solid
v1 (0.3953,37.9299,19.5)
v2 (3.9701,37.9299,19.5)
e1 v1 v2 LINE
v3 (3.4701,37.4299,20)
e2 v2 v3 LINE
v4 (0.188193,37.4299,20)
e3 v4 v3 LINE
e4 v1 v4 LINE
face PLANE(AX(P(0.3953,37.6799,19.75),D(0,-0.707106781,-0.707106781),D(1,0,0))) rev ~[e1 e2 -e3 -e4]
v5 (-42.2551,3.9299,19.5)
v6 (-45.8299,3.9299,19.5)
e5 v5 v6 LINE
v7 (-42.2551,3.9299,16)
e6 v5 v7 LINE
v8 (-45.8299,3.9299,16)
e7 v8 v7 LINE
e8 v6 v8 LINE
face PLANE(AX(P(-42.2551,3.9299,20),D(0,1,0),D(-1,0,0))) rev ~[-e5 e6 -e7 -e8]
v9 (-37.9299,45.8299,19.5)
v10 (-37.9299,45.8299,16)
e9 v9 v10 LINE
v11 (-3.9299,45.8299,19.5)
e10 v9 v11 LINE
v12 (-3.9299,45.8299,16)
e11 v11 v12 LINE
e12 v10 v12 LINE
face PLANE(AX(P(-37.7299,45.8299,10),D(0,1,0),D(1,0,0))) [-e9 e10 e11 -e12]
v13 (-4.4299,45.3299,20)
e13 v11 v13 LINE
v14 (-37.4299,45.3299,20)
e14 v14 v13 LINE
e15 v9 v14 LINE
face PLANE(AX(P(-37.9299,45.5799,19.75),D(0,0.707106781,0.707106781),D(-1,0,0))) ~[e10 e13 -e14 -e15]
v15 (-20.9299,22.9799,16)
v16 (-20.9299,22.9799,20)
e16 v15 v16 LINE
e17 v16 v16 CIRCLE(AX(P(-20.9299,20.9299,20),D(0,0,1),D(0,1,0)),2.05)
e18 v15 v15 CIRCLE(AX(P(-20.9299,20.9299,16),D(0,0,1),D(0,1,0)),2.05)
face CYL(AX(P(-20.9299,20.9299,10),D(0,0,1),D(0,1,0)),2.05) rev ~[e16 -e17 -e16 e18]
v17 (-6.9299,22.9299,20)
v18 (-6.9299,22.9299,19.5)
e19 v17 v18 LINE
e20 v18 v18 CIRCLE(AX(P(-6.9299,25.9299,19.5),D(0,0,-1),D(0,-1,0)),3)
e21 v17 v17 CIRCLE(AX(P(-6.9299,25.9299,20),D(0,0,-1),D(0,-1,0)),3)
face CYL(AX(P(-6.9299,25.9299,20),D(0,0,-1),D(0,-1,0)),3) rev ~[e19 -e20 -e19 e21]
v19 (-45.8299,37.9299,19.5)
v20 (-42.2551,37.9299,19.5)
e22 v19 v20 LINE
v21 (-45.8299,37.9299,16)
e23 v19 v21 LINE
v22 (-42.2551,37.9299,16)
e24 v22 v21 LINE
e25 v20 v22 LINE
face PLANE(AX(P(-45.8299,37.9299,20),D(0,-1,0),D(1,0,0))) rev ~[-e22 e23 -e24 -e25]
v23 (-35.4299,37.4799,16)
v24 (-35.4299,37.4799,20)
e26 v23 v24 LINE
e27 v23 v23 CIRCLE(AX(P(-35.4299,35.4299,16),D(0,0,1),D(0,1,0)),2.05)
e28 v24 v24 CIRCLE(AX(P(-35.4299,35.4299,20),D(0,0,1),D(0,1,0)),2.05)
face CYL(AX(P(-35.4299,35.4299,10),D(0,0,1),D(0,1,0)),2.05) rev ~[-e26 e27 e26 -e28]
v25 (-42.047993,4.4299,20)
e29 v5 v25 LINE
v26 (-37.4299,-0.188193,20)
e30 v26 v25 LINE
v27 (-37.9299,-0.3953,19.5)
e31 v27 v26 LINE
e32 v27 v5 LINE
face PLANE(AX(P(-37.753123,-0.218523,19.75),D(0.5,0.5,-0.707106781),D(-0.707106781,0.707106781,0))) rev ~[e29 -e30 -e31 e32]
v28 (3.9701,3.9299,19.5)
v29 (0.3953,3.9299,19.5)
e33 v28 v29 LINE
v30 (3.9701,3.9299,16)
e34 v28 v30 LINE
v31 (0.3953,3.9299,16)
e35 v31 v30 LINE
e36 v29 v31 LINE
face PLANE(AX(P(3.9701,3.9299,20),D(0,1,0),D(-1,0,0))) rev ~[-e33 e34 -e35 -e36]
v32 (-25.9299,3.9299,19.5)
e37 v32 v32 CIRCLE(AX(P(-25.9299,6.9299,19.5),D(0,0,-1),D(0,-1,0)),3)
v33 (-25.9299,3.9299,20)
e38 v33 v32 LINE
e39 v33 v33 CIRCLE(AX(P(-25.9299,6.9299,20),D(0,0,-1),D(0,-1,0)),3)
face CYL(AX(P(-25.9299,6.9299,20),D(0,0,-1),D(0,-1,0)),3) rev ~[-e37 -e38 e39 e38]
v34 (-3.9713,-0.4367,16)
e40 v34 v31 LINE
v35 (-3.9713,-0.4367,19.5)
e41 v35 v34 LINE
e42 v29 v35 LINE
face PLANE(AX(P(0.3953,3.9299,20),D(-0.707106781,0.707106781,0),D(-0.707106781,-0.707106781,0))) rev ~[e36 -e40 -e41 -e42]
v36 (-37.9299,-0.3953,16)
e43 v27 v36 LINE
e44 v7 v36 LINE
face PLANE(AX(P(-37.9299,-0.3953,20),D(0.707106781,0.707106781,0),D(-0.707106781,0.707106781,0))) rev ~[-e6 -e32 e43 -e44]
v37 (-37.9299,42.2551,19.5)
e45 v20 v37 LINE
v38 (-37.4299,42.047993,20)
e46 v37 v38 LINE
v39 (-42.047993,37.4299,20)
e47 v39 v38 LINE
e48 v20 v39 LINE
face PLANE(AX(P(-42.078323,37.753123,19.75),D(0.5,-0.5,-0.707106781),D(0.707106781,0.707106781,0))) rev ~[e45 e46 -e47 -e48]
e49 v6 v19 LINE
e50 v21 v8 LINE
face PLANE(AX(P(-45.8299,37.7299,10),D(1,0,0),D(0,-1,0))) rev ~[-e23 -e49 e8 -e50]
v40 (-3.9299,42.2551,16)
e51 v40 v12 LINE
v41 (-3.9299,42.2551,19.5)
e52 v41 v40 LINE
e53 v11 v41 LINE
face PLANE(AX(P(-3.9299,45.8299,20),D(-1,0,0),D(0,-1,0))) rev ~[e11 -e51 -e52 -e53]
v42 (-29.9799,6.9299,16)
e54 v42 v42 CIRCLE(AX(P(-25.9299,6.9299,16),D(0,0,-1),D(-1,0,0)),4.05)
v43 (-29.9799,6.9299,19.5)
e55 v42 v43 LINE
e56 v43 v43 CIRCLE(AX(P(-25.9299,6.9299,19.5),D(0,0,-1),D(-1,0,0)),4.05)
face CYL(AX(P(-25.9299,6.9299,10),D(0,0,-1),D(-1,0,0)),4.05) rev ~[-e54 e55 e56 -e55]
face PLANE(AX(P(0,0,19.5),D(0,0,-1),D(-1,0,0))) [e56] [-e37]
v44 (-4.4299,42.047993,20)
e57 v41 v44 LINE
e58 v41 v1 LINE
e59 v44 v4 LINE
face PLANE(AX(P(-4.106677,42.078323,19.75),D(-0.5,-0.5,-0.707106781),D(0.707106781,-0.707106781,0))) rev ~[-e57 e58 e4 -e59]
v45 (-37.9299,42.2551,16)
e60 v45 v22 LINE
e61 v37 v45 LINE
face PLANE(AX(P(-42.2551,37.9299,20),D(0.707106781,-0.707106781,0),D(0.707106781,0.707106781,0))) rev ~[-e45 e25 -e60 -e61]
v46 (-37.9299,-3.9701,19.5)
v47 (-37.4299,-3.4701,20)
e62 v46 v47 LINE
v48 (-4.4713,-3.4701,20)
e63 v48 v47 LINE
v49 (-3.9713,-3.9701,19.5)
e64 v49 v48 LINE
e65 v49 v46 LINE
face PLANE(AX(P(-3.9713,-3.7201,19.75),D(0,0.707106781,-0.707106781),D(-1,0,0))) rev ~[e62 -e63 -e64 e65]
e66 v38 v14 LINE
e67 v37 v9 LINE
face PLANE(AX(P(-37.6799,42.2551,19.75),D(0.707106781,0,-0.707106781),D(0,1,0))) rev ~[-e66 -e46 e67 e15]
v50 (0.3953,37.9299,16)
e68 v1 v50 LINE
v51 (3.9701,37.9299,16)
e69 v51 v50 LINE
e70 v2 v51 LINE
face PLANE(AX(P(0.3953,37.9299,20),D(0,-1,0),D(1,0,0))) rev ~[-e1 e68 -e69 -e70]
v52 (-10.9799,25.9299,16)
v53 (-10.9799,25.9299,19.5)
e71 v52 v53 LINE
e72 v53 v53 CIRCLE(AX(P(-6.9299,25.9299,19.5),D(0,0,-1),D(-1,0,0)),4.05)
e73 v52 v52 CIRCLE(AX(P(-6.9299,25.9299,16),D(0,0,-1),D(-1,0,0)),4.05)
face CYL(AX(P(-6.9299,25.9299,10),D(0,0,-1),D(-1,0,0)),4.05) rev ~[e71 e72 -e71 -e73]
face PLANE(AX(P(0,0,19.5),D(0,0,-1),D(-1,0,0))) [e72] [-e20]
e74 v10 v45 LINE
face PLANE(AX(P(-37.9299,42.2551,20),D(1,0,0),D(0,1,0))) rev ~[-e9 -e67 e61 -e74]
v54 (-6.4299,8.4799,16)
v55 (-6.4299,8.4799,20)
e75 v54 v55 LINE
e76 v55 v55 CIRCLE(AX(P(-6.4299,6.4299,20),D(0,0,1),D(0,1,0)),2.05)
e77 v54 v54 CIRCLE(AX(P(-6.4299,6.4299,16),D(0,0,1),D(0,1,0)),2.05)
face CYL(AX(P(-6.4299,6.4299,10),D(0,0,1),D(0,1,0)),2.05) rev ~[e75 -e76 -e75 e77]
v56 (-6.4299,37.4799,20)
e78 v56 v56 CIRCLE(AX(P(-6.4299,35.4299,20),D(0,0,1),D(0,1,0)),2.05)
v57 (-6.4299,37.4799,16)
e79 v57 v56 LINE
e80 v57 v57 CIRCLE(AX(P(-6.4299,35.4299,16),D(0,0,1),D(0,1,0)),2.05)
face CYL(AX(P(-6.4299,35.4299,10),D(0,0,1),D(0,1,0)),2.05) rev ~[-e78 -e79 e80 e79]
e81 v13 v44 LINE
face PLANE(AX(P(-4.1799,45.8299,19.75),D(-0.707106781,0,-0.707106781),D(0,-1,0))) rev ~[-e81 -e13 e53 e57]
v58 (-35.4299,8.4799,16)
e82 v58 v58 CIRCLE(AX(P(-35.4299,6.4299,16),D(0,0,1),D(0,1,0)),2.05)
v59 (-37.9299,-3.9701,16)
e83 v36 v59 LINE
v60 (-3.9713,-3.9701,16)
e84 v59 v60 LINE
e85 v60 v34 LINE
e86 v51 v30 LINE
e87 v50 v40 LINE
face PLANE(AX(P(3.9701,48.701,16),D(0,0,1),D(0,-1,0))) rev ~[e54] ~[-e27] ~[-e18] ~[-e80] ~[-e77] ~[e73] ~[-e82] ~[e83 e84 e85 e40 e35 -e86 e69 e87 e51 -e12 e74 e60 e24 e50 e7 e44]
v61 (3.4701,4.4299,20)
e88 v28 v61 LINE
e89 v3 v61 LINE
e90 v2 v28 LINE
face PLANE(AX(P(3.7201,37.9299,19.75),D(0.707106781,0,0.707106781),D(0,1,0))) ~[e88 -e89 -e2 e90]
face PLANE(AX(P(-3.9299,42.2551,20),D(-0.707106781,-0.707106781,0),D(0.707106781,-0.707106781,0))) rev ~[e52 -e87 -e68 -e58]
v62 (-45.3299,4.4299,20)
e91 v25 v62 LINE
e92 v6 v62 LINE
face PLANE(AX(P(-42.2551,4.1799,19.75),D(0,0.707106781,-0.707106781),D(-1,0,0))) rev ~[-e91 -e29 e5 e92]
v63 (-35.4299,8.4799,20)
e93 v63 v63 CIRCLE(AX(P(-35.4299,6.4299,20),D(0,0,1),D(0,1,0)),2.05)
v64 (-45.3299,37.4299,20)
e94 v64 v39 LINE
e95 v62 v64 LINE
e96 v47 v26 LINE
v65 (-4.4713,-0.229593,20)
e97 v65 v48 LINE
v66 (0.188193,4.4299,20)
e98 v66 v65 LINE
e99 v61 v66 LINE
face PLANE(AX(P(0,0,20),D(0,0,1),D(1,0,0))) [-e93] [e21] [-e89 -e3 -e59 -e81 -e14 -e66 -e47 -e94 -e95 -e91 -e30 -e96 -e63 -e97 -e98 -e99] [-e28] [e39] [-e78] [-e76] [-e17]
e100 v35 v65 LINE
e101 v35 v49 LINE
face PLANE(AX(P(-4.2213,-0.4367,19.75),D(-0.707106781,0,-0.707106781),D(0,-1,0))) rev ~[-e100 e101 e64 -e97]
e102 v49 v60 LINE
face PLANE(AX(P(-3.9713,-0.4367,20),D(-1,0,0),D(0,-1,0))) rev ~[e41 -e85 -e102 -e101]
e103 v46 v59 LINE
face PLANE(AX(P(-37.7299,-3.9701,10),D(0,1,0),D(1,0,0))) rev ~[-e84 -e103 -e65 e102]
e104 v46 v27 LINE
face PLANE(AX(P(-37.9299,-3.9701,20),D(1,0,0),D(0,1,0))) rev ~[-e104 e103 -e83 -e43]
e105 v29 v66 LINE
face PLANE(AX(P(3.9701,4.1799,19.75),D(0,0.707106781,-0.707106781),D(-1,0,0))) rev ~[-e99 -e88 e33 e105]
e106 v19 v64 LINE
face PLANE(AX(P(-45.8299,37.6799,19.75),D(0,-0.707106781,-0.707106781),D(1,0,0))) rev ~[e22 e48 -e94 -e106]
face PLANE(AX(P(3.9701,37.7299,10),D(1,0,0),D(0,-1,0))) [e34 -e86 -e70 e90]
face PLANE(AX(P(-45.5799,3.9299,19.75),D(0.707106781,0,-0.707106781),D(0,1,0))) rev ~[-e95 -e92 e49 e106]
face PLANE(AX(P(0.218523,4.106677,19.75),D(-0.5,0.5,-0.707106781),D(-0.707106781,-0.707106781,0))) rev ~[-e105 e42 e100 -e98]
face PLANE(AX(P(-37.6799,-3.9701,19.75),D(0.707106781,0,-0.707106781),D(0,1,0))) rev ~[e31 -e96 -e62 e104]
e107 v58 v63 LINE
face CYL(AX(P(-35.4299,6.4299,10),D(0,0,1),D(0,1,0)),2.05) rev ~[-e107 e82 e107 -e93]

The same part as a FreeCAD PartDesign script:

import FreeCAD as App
import Part
import Sketcher

V = App.Vector
Q = App.Units.Quantity


def edges_at(feature, points):
    """Names of the edges that pass closest to the given points."""
    edges = feature.Shape.Edges
    near = lambda p: min(range(len(edges)), key=lambda i: edges[i].distToShape(Part.Vertex(*p))[0])
    return sorted({f"Edge{near(p) + 1}" for p in points})

doc = App.newDocument("Part")
body = doc.addObject("PartDesign::Body", "Body")

# Sketch on XY plane
sketch1 = doc.addObject("Sketcher::SketchObject", "Sketch")
body.addObject(sketch1)
sketch1.AttachmentSupport = (doc.XY_Plane, [""])
sketch1.MapMode = "FlatFace"
sketch1.AttachmentOffset = App.Placement(V(0, 0, 10), App.Rotation())
sketch1.addGeometry(Part.LineSegment(V(-4.171, -0.354, 0), V(0.312, 4.13, 0)), False)
sketch1.addGeometry(Part.LineSegment(V(0.312, 4.13, 0), V(3.97, 4.13, 0)), False)
sketch1.addGeometry(Part.LineSegment(V(3.97, 4.13, 0), V(3.97, 37.73, 0)), False)
sketch1.addGeometry(Part.LineSegment(V(3.97, 37.73, 0), V(0.312, 37.73, 0)), False)
sketch1.addGeometry(Part.LineSegment(V(0.312, 37.73, 0), V(-4.13, 42.172, 0)), False)
sketch1.addGeometry(Part.LineSegment(V(-4.13, 42.172, 0), V(-4.13, 45.83, 0)), False)
sketch1.addGeometry(Part.LineSegment(V(-4.13, 45.83, 0), V(-37.73, 45.83, 0)), False)
sketch1.addGeometry(Part.LineSegment(V(-37.73, 45.83, 0), V(-37.73, 42.172, 0)), False)
sketch1.addGeometry(Part.LineSegment(V(-37.73, 42.172, 0), V(-42.172, 37.73, 0)), False)
sketch1.addGeometry(Part.LineSegment(V(-42.172, 37.73, 0), V(-45.83, 37.73, 0)), False)
sketch1.addGeometry(Part.LineSegment(V(-45.83, 37.73, 0), V(-45.83, 4.13, 0)), False)
sketch1.addGeometry(Part.LineSegment(V(-45.83, 4.13, 0), V(-42.172, 4.13, 0)), False)
sketch1.addGeometry(Part.LineSegment(V(-42.172, 4.13, 0), V(-37.689, -0.354, 0)), False)
sketch1.addGeometry(Part.LineSegment(V(-37.689, -0.354, 0), V(-37.73, -0.354, 0)), False)
sketch1.addGeometry(Part.LineSegment(V(-37.73, -0.354, 0), V(-37.73, -3.97, 0)), False)
sketch1.addGeometry(Part.LineSegment(V(-37.73, -3.97, 0), V(-4.171, -3.97, 0)), False)
sketch1.addGeometry(Part.LineSegment(V(-4.171, -3.97, 0), V(-4.171, -0.354, 0)), False)
sketch1.addConstraint(Sketcher.Constraint("Coincident", 0, 2, 1, 1))
sketch1.addConstraint(Sketcher.Constraint("Coincident", 1, 2, 2, 1))
sketch1.addConstraint(Sketcher.Constraint("Coincident", 2, 2, 3, 1))
sketch1.addConstraint(Sketcher.Constraint("Coincident", 3, 2, 4, 1))
sketch1.addConstraint(Sketcher.Constraint("Coincident", 4, 2, 5, 1))
sketch1.addConstraint(Sketcher.Constraint("Coincident", 5, 2, 6, 1))
sketch1.addConstraint(Sketcher.Constraint("Coincident", 6, 2, 7, 1))
sketch1.addConstraint(Sketcher.Constraint("Coincident", 7, 2, 8, 1))
sketch1.addConstraint(Sketcher.Constraint("Coincident", 8, 2, 9, 1))
sketch1.addConstraint(Sketcher.Constraint("Coincident", 9, 2, 10, 1))
sketch1.addConstraint(Sketcher.Constraint("Coincident", 10, 2, 11, 1))
sketch1.addConstraint(Sketcher.Constraint("Coincident", 11, 2, 12, 1))
sketch1.addConstraint(Sketcher.Constraint("Coincident", 12, 2, 13, 1))
sketch1.addConstraint(Sketcher.Constraint("Coincident", 13, 2, 14, 1))
sketch1.addConstraint(Sketcher.Constraint("Coincident", 14, 2, 15, 1))
sketch1.addConstraint(Sketcher.Constraint("Coincident", 15, 2, 16, 1))
sketch1.addConstraint(Sketcher.Constraint("Coincident", 16, 2, 0, 1))
sketch1.addConstraint(Sketcher.Constraint("Horizontal", 1))
sketch1.addConstraint(Sketcher.Constraint("Vertical", 2))
sketch1.addConstraint(Sketcher.Constraint("Horizontal", 3))
sketch1.addConstraint(Sketcher.Constraint("Vertical", 5))
sketch1.addConstraint(Sketcher.Constraint("Horizontal", 6))
sketch1.addConstraint(Sketcher.Constraint("Vertical", 7))
sketch1.addConstraint(Sketcher.Constraint("Horizontal", 9))
sketch1.addConstraint(Sketcher.Constraint("Vertical", 10))
sketch1.addConstraint(Sketcher.Constraint("Horizontal", 11))
sketch1.addConstraint(Sketcher.Constraint("Horizontal", 13))
sketch1.addConstraint(Sketcher.Constraint("Vertical", 14))
sketch1.addConstraint(Sketcher.Constraint("Horizontal", 15))
sketch1.addConstraint(Sketcher.Constraint("Vertical", 16))
sketch1.addConstraint(Sketcher.Constraint("Perpendicular", 0, 4))
sketch1.addConstraint(Sketcher.Constraint("Perpendicular", 4, 8))
sketch1.addConstraint(Sketcher.Constraint("Perpendicular", 8, 12))
sketch1.addConstraint(Sketcher.Constraint("Horizontal", 4, 2, 7, 2))
sketch1.addConstraint(Sketcher.Constraint("Horizontal", 3, 2, 8, 2))
sketch1.addConstraint(Sketcher.Constraint("Horizontal", 1, 2, 10, 2))
sketch1.addConstraint(Sketcher.Constraint("Horizontal", 13, 2, 16, 2))
sketch1.addConstraint(Sketcher.Constraint("Vertical", 0, 2, 3, 2))
sketch1.addConstraint(Sketcher.Constraint("Vertical", 8, 2, 11, 2))
sketch1.addConstraint(Sketcher.Constraint("Vertical", 7, 2, 13, 2))
sketch1.addConstraint(Sketcher.Constraint("Equal", 3, 9))
sketch1.addConstraint(Sketcher.Constraint("Equal", 6, 2))
sketch1.addConstraint(Sketcher.Constraint("Equal", 11, 5))
sketch1.addConstraint(Sketcher.Constraint("Equal", 4, 8))
sketch1.addConstraint(Sketcher.Constraint("DistanceX", 6, 2, 6, 1, Q("33.6 mm")))
sketch1.addConstraint(Sketcher.Constraint("DistanceX", 4, 2, 2, 2, Q("8.1 mm")))
sketch1.addConstraint(Sketcher.Constraint("DistanceY", 14, 2, 11, 2, Q("8.1 mm")))
sketch1.addConstraint(Sketcher.Constraint("DistanceY", -1, 1, 0, 2, Q("4.13 mm")))
sketch1.addConstraint(Sketcher.Constraint("DistanceX", -1, 1, 1, 2, Q("3.97 mm")))
sketch1.addConstraint(Sketcher.Constraint("Distance", 0, Q("6.341 mm")))
sketch1.addConstraint(Sketcher.Constraint("DistanceX", 1, 1, 1, 2, Q("3.6577 mm")))
pad1 = doc.addObject("PartDesign::Pad", "Pad")
body.addObject(pad1)
pad1.Profile = sketch1
pad1.Length = 10

# Sketch on XY plane
sketch2 = doc.addObject("Sketcher::SketchObject", "Sketch001")
body.addObject(sketch2)
sketch2.AttachmentSupport = (doc.XY_Plane, [""])
sketch2.MapMode = "FlatFace"
sketch2.AttachmentOffset = App.Placement(V(0, 0, 20), App.Rotation())
sketch2.addGeometry(Part.LineSegment(V(3.97, 3.93, 0), V(3.97, 4.13, 0)), False)
sketch2.addGeometry(Part.LineSegment(V(3.97, 4.13, 0), V(0.312, 4.13, 0)), False)
sketch2.addGeometry(Part.LineSegment(V(0.312, 4.13, 0), V(-4.171, -0.354, 0)), False)
sketch2.addGeometry(Part.LineSegment(V(-4.171, -0.354, 0), V(-4.171, -3.97, 0)), False)
sketch2.addGeometry(Part.LineSegment(V(-4.171, -3.97, 0), V(-3.971, -3.97, 0)), False)
sketch2.addGeometry(Part.LineSegment(V(-3.971, -3.97, 0), V(-3.971, -0.437, 0)), False)
sketch2.addGeometry(Part.LineSegment(V(-3.971, -0.437, 0), V(0.395, 3.93, 0)), False)
sketch2.addGeometry(Part.LineSegment(V(0.395, 3.93, 0), V(3.97, 3.93, 0)), False)
sketch2.addGeometry(Part.LineSegment(V(-3.93, 45.83, 0), V(-4.13, 45.83, 0)), False)
sketch2.addGeometry(Part.LineSegment(V(-4.13, 45.83, 0), V(-4.13, 42.172, 0)), False)
sketch2.addGeometry(Part.LineSegment(V(-4.13, 42.172, 0), V(0.312, 37.73, 0)), False)
sketch2.addGeometry(Part.LineSegment(V(0.312, 37.73, 0), V(3.97, 37.73, 0)), False)
sketch2.addGeometry(Part.LineSegment(V(3.97, 37.73, 0), V(3.97, 37.93, 0)), False)
sketch2.addGeometry(Part.LineSegment(V(3.97, 37.93, 0), V(0.395, 37.93, 0)), False)
sketch2.addGeometry(Part.LineSegment(V(0.395, 37.93, 0), V(-3.93, 42.255, 0)), False)
sketch2.addGeometry(Part.LineSegment(V(-3.93, 42.255, 0), V(-3.93, 45.83, 0)), False)
sketch2.addGeometry(Part.LineSegment(V(-42.172, 37.73, 0), V(-37.73, 42.172, 0)), False)
sketch2.addGeometry(Part.LineSegment(V(-37.73, 42.172, 0), V(-37.73, 45.83, 0)), False)
sketch2.addGeometry(Part.LineSegment(V(-37.73, 45.83, 0), V(-37.93, 45.83, 0)), False)
sketch2.addGeometry(Part.LineSegment(V(-37.93, 45.83, 0), V(-37.93, 42.255, 0)), False)
sketch2.addGeometry(Part.LineSegment(V(-37.93, 42.255, 0), V(-42.255, 37.93, 0)), False)
sketch2.addGeometry(Part.LineSegment(V(-42.255, 37.93, 0), V(-45.83, 37.93, 0)), False)
sketch2.addGeometry(Part.LineSegment(V(-45.83, 37.93, 0), V(-45.83, 37.73, 0)), False)
sketch2.addGeometry(Part.LineSegment(V(-45.83, 37.73, 0), V(-42.172, 37.73, 0)), False)
sketch2.addGeometry(Part.LineSegment(V(-42.172, 4.13, 0), V(-45.83, 4.13, 0)), False)
sketch2.addGeometry(Part.LineSegment(V(-45.83, 4.13, 0), V(-45.83, 3.93, 0)), False)
sketch2.addGeometry(Part.LineSegment(V(-45.83, 3.93, 0), V(-42.255, 3.93, 0)), False)
sketch2.addGeometry(Part.LineSegment(V(-42.255, 3.93, 0), V(-37.93, -0.395, 0)), False)
sketch2.addGeometry(Part.LineSegment(V(-37.93, -0.395, 0), V(-37.93, -3.97, 0)), False)
sketch2.addGeometry(Part.LineSegment(V(-37.93, -3.97, 0), V(-37.73, -3.97, 0)), False)
sketch2.addGeometry(Part.LineSegment(V(-37.73, -3.97, 0), V(-37.73, -0.354, 0)), False)
sketch2.addGeometry(Part.LineSegment(V(-37.73, -0.354, 0), V(-37.688, -0.354, 0)), False)
sketch2.addGeometry(Part.LineSegment(V(-37.688, -0.354, 0), V(-42.172, 4.13, 0)), False)
sketch2.addConstraint(Sketcher.Constraint("Coincident", 0, 2, 1, 1))
sketch2.addConstraint(Sketcher.Constraint("Coincident", 1, 2, 2, 1))
sketch2.addConstraint(Sketcher.Constraint("Coincident", 2, 2, 3, 1))
sketch2.addConstraint(Sketcher.Constraint("Coincident", 3, 2, 4, 1))
sketch2.addConstraint(Sketcher.Constraint("Coincident", 4, 2, 5, 1))
sketch2.addConstraint(Sketcher.Constraint("Coincident", 5, 2, 6, 1))
sketch2.addConstraint(Sketcher.Constraint("Coincident", 6, 2, 7, 1))
sketch2.addConstraint(Sketcher.Constraint("Coincident", 7, 2, 0, 1))
sketch2.addConstraint(Sketcher.Constraint("Coincident", 8, 2, 9, 1))
sketch2.addConstraint(Sketcher.Constraint("Coincident", 9, 2, 10, 1))
sketch2.addConstraint(Sketcher.Constraint("Coincident", 10, 2, 11, 1))
sketch2.addConstraint(Sketcher.Constraint("Coincident", 11, 2, 12, 1))
sketch2.addConstraint(Sketcher.Constraint("Coincident", 12, 2, 13, 1))
sketch2.addConstraint(Sketcher.Constraint("Coincident", 13, 2, 14, 1))
sketch2.addConstraint(Sketcher.Constraint("Coincident", 14, 2, 15, 1))
sketch2.addConstraint(Sketcher.Constraint("Coincident", 15, 2, 8, 1))
sketch2.addConstraint(Sketcher.Constraint("Coincident", 16, 2, 17, 1))
sketch2.addConstraint(Sketcher.Constraint("Coincident", 17, 2, 18, 1))
sketch2.addConstraint(Sketcher.Constraint("Coincident", 18, 2, 19, 1))
sketch2.addConstraint(Sketcher.Constraint("Coincident", 19, 2, 20, 1))
sketch2.addConstraint(Sketcher.Constraint("Coincident", 20, 2, 21, 1))
sketch2.addConstraint(Sketcher.Constraint("Coincident", 21, 2, 22, 1))
sketch2.addConstraint(Sketcher.Constraint("Coincident", 22, 2, 23, 1))
sketch2.addConstraint(Sketcher.Constraint("Coincident", 23, 2, 16, 1))
sketch2.addConstraint(Sketcher.Constraint("Coincident", 24, 2, 25, 1))
sketch2.addConstraint(Sketcher.Constraint("Coincident", 25, 2, 26, 1))
sketch2.addConstraint(Sketcher.Constraint("Coincident", 26, 2, 27, 1))
sketch2.addConstraint(Sketcher.Constraint("Coincident", 27, 2, 28, 1))
sketch2.addConstraint(Sketcher.Constraint("Coincident", 28, 2, 29, 1))
sketch2.addConstraint(Sketcher.Constraint("Coincident", 29, 2, 30, 1))
sketch2.addConstraint(Sketcher.Constraint("Coincident", 30, 2, 31, 1))
sketch2.addConstraint(Sketcher.Constraint("Coincident", 31, 2, 32, 1))
sketch2.addConstraint(Sketcher.Constraint("Coincident", 32, 2, 24, 1))
sketch2.addConstraint(Sketcher.Constraint("Vertical", 0))
sketch2.addConstraint(Sketcher.Constraint("Horizontal", 1))
sketch2.addConstraint(Sketcher.Constraint("Vertical", 3))
sketch2.addConstraint(Sketcher.Constraint("Horizontal", 4))
sketch2.addConstraint(Sketcher.Constraint("Vertical", 5))
sketch2.addConstraint(Sketcher.Constraint("Horizontal", 7))
sketch2.addConstraint(Sketcher.Constraint("Horizontal", 8))
sketch2.addConstraint(Sketcher.Constraint("Vertical", 9))
sketch2.addConstraint(Sketcher.Constraint("Horizontal", 11))
sketch2.addConstraint(Sketcher.Constraint("Vertical", 12))
sketch2.addConstraint(Sketcher.Constraint("Horizontal", 13))
sketch2.addConstraint(Sketcher.Constraint("Vertical", 15))
sketch2.addConstraint(Sketcher.Constraint("Vertical", 17))
sketch2.addConstraint(Sketcher.Constraint("Horizontal", 18))
sketch2.addConstraint(Sketcher.Constraint("Vertical", 19))
sketch2.addConstraint(Sketcher.Constraint("Horizontal", 21))
sketch2.addConstraint(Sketcher.Constraint("Vertical", 22))
sketch2.addConstraint(Sketcher.Constraint("Horizontal", 23))
sketch2.addConstraint(Sketcher.Constraint("Horizontal", 24))
sketch2.addConstraint(Sketcher.Constraint("Vertical", 25))
sketch2.addConstraint(Sketcher.Constraint("Horizontal", 26))
sketch2.addConstraint(Sketcher.Constraint("Vertical", 28))
sketch2.addConstraint(Sketcher.Constraint("Horizontal", 29))
sketch2.addConstraint(Sketcher.Constraint("Vertical", 30))
sketch2.addConstraint(Sketcher.Constraint("Horizontal", 31))
sketch2.addConstraint(Sketcher.Constraint("Parallel", 2, 6))
sketch2.addConstraint(Sketcher.Constraint("Perpendicular", 6, 10))
sketch2.addConstraint(Sketcher.Constraint("Parallel", 10, 14))
sketch2.addConstraint(Sketcher.Constraint("Perpendicular", 14, 16))
sketch2.addConstraint(Sketcher.Constraint("Parallel", 16, 20))
sketch2.addConstraint(Sketcher.Constraint("Perpendicular", 20, 27))
sketch2.addConstraint(Sketcher.Constraint("Parallel", 27, 32))
sketch2.addConstraint(Sketcher.Constraint("Horizontal", 9, 2, 16, 2))
sketch2.addConstraint(Sketcher.Constraint("Horizontal", 15, 2, 17, 2))
sketch2.addConstraint(Sketcher.Constraint("Horizontal", 14, 2, 19, 2))
sketch2.addConstraint(Sketcher.Constraint("Horizontal", 13, 2, 20, 2))
sketch2.addConstraint(Sketcher.Constraint("Horizontal", 11, 2, 22, 2))
sketch2.addConstraint(Sketcher.Constraint("Horizontal", 1, 2, 24, 2))
sketch2.addConstraint(Sketcher.Constraint("Horizontal", 7, 2, 25, 2))
sketch2.addConstraint(Sketcher.Constraint("Horizontal", 4, 2, 28, 2))
sketch2.addConstraint(Sketcher.Constraint("Horizontal", 2, 2, 30, 2))
sketch2.addConstraint(Sketcher.Constraint("Vertical", 1, 2, 10, 2))
sketch2.addConstraint(Sketcher.Constraint("Vertical", 7, 2, 11, 2))
sketch2.addConstraint(Sketcher.Constraint("Vertical", 6, 2, 13, 2))
sketch2.addConstraint(Sketcher.Constraint("Vertical", 22, 2, 24, 2))
sketch2.addConstraint(Sketcher.Constraint("Vertical", 20, 2, 26, 2))
sketch2.addConstraint(Sketcher.Constraint("Vertical", 19, 2, 27, 2))
sketch2.addConstraint(Sketcher.Constraint("Vertical", 17, 2, 29, 2))
sketch2.addConstraint(Sketcher.Constraint("Vertical", 23, 2, 32, 2))
sketch2.addConstraint(Sketcher.Constraint("Equal", 4, 8))
sketch2.addConstraint(Sketcher.Constraint("Equal", 8, 18))
sketch2.addConstraint(Sketcher.Constraint("Equal", 13, 21))
sketch2.addConstraint(Sketcher.Constraint("Equal", 11, 23))
sketch2.addConstraint(Sketcher.Constraint("Equal", 29, 0))
sketch2.addConstraint(Sketcher.Constraint("Equal", 24, 9))
sketch2.addConstraint(Sketcher.Constraint("Equal", 0, 12))
sketch2.addConstraint(Sketcher.Constraint("Equal", 19, 28))
sketch2.addConstraint(Sketcher.Constraint("DistanceX", 4, 1, 4, 2, Q("0.2 mm")))
sketch2.addConstraint(Sketcher.Constraint("DistanceX", 18, 2, 15, 2, Q("34 mm")))
sketch2.addConstraint(Sketcher.Constraint("DistanceY", 25, 2, 21, 2, Q("34 mm")))
sketch2.addConstraint(Sketcher.Constraint("DistanceY", 3, 2, 1, 2, Q("8.1 mm")))
sketch2.addConstraint(Sketcher.Constraint("DistanceX", -1, 1, 0, 2, Q("3.97 mm")))
sketch2.addConstraint(Sketcher.Constraint("DistanceY", -1, 1, 0, 2, Q("4.13 mm")))
sketch2.addConstraint(Sketcher.Constraint("Distance", 2, Q("6.341 mm")))
sketch2.addConstraint(Sketcher.Constraint("DistanceX", 1, 2, 1, 1, Q("3.6577 mm")))
sketch2.addConstraint(Sketcher.Constraint("DistanceX", 7, 1, 7, 2, Q("3.5748 mm")))
pad2 = doc.addObject("PartDesign::Pad", "Pad001")
body.addObject(pad2)
pad2.Profile = sketch2
pad2.Length = 10
pad2.Reversed = True

# Sketch on XY plane
sketch3 = doc.addObject("Sketcher::SketchObject", "Sketch002")
body.addObject(sketch3)
sketch3.AttachmentSupport = (doc.XY_Plane, [""])
sketch3.MapMode = "FlatFace"
sketch3.AttachmentOffset = App.Placement(V(0, 0, 10), App.Rotation())
sketch3.addGeometry(Part.Circle(V(-20.9, 20.9, 0), V(0, 0, 1), 2), False)
sketch3.addGeometry(Part.Circle(V(-6.4, 6.4, 0), V(0, 0, 1), 2), False)
sketch3.addGeometry(Part.Circle(V(-35.4, 6.4, 0), V(0, 0, 1), 2), False)
sketch3.addGeometry(Part.Circle(V(-35.4, 35.4, 0), V(0, 0, 1), 2), False)
sketch3.addGeometry(Part.Circle(V(-6.4, 35.4, 0), V(0, 0, 1), 2), False)
sketch3.addConstraint(Sketcher.Constraint("Equal", 0, 1))
sketch3.addConstraint(Sketcher.Constraint("Equal", 1, 2))
sketch3.addConstraint(Sketcher.Constraint("Equal", 2, 3))
sketch3.addConstraint(Sketcher.Constraint("Equal", 3, 4))
sketch3.addConstraint(Sketcher.Constraint("Horizontal", 1, 3, 2, 3))
sketch3.addConstraint(Sketcher.Constraint("Horizontal", 3, 3, 4, 3))
sketch3.addConstraint(Sketcher.Constraint("Vertical", 2, 3, 3, 3))
sketch3.addConstraint(Sketcher.Constraint("Vertical", 1, 3, 4, 3))
sketch3.addConstraint(Sketcher.Constraint("Diameter", 0, Q("4.1 mm")))
sketch3.addConstraint(Sketcher.Constraint("DistanceX", 2, 3, 1, 3, Q("29 mm")))
sketch3.addConstraint(Sketcher.Constraint("DistanceY", 2, 3, 3, 3, Q("29 mm")))
sketch3.addConstraint(Sketcher.Constraint("DistanceX", 0, 3, 1, 3, Q("14.5 mm")))
sketch3.addConstraint(Sketcher.Constraint("DistanceY", 1, 3, 0, 3, Q("14.5 mm")))
sketch3.addConstraint(Sketcher.Constraint("DistanceX", 0, 3, -1, 1, Q("20.93 mm")))
sketch3.addConstraint(Sketcher.Constraint("DistanceY", -1, 1, 0, 3, Q("20.93 mm")))
doc.recompute()
hole = doc.addObject("PartDesign::Hole", "Hole")
body.addObject(hole)
hole.Profile = sketch3
hole.ThreadType = "None"
hole.Diameter = 4.1
hole.DepthType = "ThroughAll"
hole.Reversed = True

# Sketch on XY plane
sketch4 = doc.addObject("Sketcher::SketchObject", "Sketch003")
body.addObject(sketch4)
sketch4.AttachmentSupport = (doc.XY_Plane, [""])
sketch4.MapMode = "FlatFace"
sketch4.AttachmentOffset = App.Placement(V(0, 0, 10), App.Rotation())
sketch4.addGeometry(Part.Circle(V(-25.9, 6.9, 0), V(0, 0, 1), 4), False)
sketch4.addGeometry(Part.Circle(V(-6.9, 25.9, 0), V(0, 0, 1), 4), False)
sketch4.addConstraint(Sketcher.Constraint("Equal", 0, 1))
sketch4.addConstraint(Sketcher.Constraint("Diameter", 0, Q("8.1 mm")))
sketch4.addConstraint(Sketcher.Constraint("DistanceX", 0, 3, 1, 3, Q("19 mm")))
sketch4.addConstraint(Sketcher.Constraint("DistanceY", 0, 3, 1, 3, Q("19 mm")))
sketch4.addConstraint(Sketcher.Constraint("DistanceX", 0, 3, -1, 1, Q("25.93 mm")))
sketch4.addConstraint(Sketcher.Constraint("DistanceY", -1, 1, 0, 3, Q("6.93 mm")))
pocket1 = doc.addObject("PartDesign::Pocket", "Pocket")
body.addObject(pocket1)
pocket1.Profile = sketch4
pocket1.Length = 9.5
pocket1.Reversed = True
doc.recompute()

chamfer = doc.addObject("PartDesign::Chamfer", "Chamfer")
body.addObject(chamfer)
chamfer.Base = (pocket1, edges_at(pocket1, [
    (-2.88, 25.93, 10),
    (-35.43, 4.38, 10),
    (-6.43, 4.38, 10),
    (-20.93, 18.88, 10),
    (-35.43, 33.38, 10),
    (-6.43, 33.38, 10),
    (-21.88, 6.93, 10),
    (-45.83, 20.93, 10),
    (-20.951, -3.97, 10),
    (3.97, 20.93, 20),
    (3.97, 20.93, 10),
    (-20.93, 45.83, 10),
    (-44.042, 37.93, 20),
    (-40.093, 40.093, 20),
    (-37.93, 44.042, 20),
    (-20.93, 45.83, 20),
    (-45.83, 20.93, 20),
    (-44.042, 3.93, 20),
    (-20.951, -3.97, 20),
    (-37.93, -2.183, 20),
    (-40.093, 1.767, 20),
    (-3.971, -2.203, 20),
    (-1.788, 1.747, 20),
    (2.183, 3.93, 20),
    (2.183, 37.93, 20),
    (-1.767, 40.093, 20),
    (-3.93, 44.042, 20),
]))
chamfer.Size = 0.5

# Sketch on XY plane
sketch5 = doc.addObject("Sketcher::SketchObject", "Sketch004")
body.addObject(sketch5)
sketch5.AttachmentSupport = (doc.XY_Plane, [""])
sketch5.MapMode = "FlatFace"
sketch5.AttachmentOffset = App.Placement(V(0, 0, 20), App.Rotation())
sketch5.addGeometry(Part.Circle(V(-6.9, 25.9, 0), V(0, 0, 1), 3), False)
sketch5.addGeometry(Part.Circle(V(-25.9, 6.9, 0), V(0, 0, 1), 3), False)
sketch5.addConstraint(Sketcher.Constraint("Equal", 0, 1))
sketch5.addConstraint(Sketcher.Constraint("Diameter", 0, Q("6 mm")))
sketch5.addConstraint(Sketcher.Constraint("DistanceX", 1, 3, 0, 3, Q("19 mm")))
sketch5.addConstraint(Sketcher.Constraint("DistanceY", 1, 3, 0, 3, Q("19 mm")))
sketch5.addConstraint(Sketcher.Constraint("DistanceX", 0, 3, -1, 1, Q("6.93 mm")))
sketch5.addConstraint(Sketcher.Constraint("DistanceY", -1, 1, 0, 3, Q("25.93 mm")))
doc.recompute()
hole2 = doc.addObject("PartDesign::Hole", "Hole001")
body.addObject(hole2)
hole2.Profile = sketch5
hole2.ThreadType = "None"
hole2.Diameter = 6
hole2.DepthType = "ThroughAll"

# Sketch on YZ plane
sketch6 = doc.addObject("Sketcher::SketchObject", "Sketch005")
body.addObject(sketch6)
sketch6.AttachmentSupport = (doc.YZ_Plane, [""])
sketch6.MapMode = "FlatFace"
sketch6.AttachmentOffset = App.Placement(V(0, 0, 3.9701), App.Rotation())
sketch6.addGeometry(Part.LineSegment(V(-14, 10, 0), V(49, 10, 0)), False)
sketch6.addGeometry(Part.LineSegment(V(49, 10, 0), V(49, 16, 0)), False)
sketch6.addGeometry(Part.LineSegment(V(49, 16, 0), V(-14, 16, 0)), False)
sketch6.addGeometry(Part.LineSegment(V(-14, 16, 0), V(-14, 10, 0)), False)
sketch6.addConstraint(Sketcher.Constraint("Coincident", 0, 2, 1, 1))
sketch6.addConstraint(Sketcher.Constraint("Coincident", 1, 2, 2, 1))
sketch6.addConstraint(Sketcher.Constraint("Coincident", 2, 2, 3, 1))
sketch6.addConstraint(Sketcher.Constraint("Coincident", 3, 2, 0, 1))
sketch6.addConstraint(Sketcher.Constraint("Horizontal", 0))
sketch6.addConstraint(Sketcher.Constraint("Vertical", 1))
sketch6.addConstraint(Sketcher.Constraint("Horizontal", 2))
sketch6.addConstraint(Sketcher.Constraint("Vertical", 3))
sketch6.addConstraint(Sketcher.Constraint("DistanceY", 1, 1, 1, 2, Q("6 mm")))
sketch6.addConstraint(Sketcher.Constraint("DistanceY", -1, 1, 0, 2, Q("10 mm")))
sketch6.addConstraint(Sketcher.Constraint("DistanceX", 0, 1, 0, 2, Q("62.2945 mm")))
sketch6.addConstraint(Sketcher.Constraint("DistanceX", -1, 1, 0, 2, Q("48.701 mm")))
pocket2 = doc.addObject("PartDesign::Pocket", "Pocket001")
body.addObject(pocket2)
pocket2.Profile = sketch6
pocket2.Type = "ThroughAll"

doc.recompute()
